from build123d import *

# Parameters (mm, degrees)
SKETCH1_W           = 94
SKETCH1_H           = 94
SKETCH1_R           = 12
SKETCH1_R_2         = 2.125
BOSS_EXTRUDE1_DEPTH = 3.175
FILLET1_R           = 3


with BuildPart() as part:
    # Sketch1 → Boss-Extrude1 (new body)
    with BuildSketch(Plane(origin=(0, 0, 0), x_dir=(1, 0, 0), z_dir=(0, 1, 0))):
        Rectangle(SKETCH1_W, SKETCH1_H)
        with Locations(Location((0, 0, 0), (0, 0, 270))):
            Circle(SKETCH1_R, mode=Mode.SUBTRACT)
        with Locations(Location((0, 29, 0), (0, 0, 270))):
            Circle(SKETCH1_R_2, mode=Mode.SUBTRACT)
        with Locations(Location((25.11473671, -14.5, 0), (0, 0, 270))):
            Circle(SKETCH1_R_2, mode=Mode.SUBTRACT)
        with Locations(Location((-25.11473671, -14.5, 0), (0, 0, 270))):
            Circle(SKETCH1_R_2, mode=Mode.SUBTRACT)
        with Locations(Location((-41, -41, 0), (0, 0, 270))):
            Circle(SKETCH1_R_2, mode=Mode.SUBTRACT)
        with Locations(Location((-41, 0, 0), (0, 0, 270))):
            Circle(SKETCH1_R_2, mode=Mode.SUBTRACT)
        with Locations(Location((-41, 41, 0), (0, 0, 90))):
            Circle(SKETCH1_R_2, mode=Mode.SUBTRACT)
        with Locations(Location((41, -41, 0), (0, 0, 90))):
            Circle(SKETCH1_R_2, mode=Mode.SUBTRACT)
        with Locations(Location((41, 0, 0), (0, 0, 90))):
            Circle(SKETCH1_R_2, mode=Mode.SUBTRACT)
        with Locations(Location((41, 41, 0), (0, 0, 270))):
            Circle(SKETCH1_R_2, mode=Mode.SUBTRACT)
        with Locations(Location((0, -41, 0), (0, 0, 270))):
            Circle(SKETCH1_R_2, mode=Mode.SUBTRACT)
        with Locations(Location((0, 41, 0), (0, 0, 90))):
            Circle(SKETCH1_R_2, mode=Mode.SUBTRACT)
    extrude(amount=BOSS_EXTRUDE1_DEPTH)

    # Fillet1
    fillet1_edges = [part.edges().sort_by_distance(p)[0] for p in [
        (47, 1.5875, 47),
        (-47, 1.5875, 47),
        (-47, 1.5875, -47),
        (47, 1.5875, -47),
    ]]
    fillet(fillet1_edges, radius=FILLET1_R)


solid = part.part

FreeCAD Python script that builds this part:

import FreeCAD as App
import Part
import Sketcher

V = App.Vector
Q = App.Units.Quantity


def edges_at(feature, points):
    """Names of the edges that pass closest to the given points."""
    edges = feature.Shape.Edges
    near = lambda p: min(range(len(edges)), key=lambda i: edges[i].distToShape(Part.Vertex(*p))[0])
    return sorted({f"Edge{near(p) + 1}" for p in points})

doc = App.newDocument("Part")
body = doc.addObject("PartDesign::Body", "Body")

sketch1 = body.newObject("Sketcher::SketchObject", "Sketch")
sketch1.AttachmentSupport = (doc.getObject("XZ_Plane"), [""])
sketch1.MapMode = "FlatFace"
sketch1.addGeometry(Part.LineSegment(V(-47, -47, 0), V(-47, 47, 0)), False)
sketch1.addGeometry(Part.LineSegment(V(-47, 47, 0), V(47, 47, 0)), False)
sketch1.addGeometry(Part.LineSegment(V(47, 47, 0), V(47, -47, 0)), False)
sketch1.addGeometry(Part.LineSegment(V(47, -47, 0), V(-47, -47, 0)), False)
sketch1.addGeometry(Part.Circle(V(-41, 41, 0), V(0, 0, 1), 2.1), False)
sketch1.addGeometry(Part.Circle(V(-25.1, 14.5, 0), V(0, 0, 1), 2.1), False)
sketch1.addGeometry(Part.Circle(V(0, 41, 0), V(0, 0, 1), 2.1), False)
sketch1.addGeometry(Part.Circle(V(41, 41, 0), V(0, 0, 1), 2.1), False)
sketch1.addGeometry(Part.Circle(V(25.1, 14.5, 0), V(0, 0, 1), 2.1), False)
sketch1.addGeometry(Part.Circle(V(-41, 0, 0), V(0, 0, 1), 2.1), False)
sketch1.addGeometry(Part.Circle(V(-41, -41, 0), V(0, 0, 1), 2.1), False)
sketch1.addGeometry(Part.Circle(V(0, 0, 0), V(0, 0, 1), 12), False)
sketch1.addGeometry(Part.Circle(V(41, 0, 0), V(0, 0, 1), 2.1), False)
sketch1.addGeometry(Part.Circle(V(0, -29, 0), V(0, 0, 1), 2.1), False)
sketch1.addGeometry(Part.Circle(V(0, -41, 0), V(0, 0, 1), 2.1), False)
sketch1.addGeometry(Part.Circle(V(41, -41, 0), V(0, 0, 1), 2.1), False)
sketch1.addConstraint(Sketcher.Constraint("Coincident", 0, 2, 1, 1))
sketch1.addConstraint(Sketcher.Constraint("Coincident", 1, 2, 2, 1))
sketch1.addConstraint(Sketcher.Constraint("Coincident", 2, 2, 3, 1))
sketch1.addConstraint(Sketcher.Constraint("Coincident", 3, 2, 0, 1))
sketch1.addConstraint(Sketcher.Constraint("Vertical", 0))
sketch1.addConstraint(Sketcher.Constraint("Horizontal", 1))
sketch1.addConstraint(Sketcher.Constraint("Vertical", 2))
sketch1.addConstraint(Sketcher.Constraint("Horizontal", 3))
sketch1.addConstraint(Sketcher.Constraint("Coincident", 11, 3, -1, 1))
sketch1.addConstraint(Sketcher.Constraint("Equal", 4, 5))
sketch1.addConstraint(Sketcher.Constraint("Equal", 5, 6))
sketch1.addConstraint(Sketcher.Constraint("Equal", 6, 7))
sketch1.addConstraint(Sketcher.Constraint("Equal", 7, 8))
sketch1.addConstraint(Sketcher.Constraint("Equal", 8, 9))
sketch1.addConstraint(Sketcher.Constraint("Equal", 9, 10))
sketch1.addConstraint(Sketcher.Constraint("Equal", 10, 12))
sketch1.addConstraint(Sketcher.Constraint("Equal", 12, 13))
sketch1.addConstraint(Sketcher.Constraint("Equal", 13, 14))
sketch1.addConstraint(Sketcher.Constraint("Equal", 14, 15))
sketch1.addConstraint(Sketcher.Constraint("Symmetric", 7, 3, 10, 3, -1, 1))
sketch1.addConstraint(Sketcher.Constraint("Symmetric", 9, 3, 12, 3, -1, 1))
sketch1.addConstraint(Sketcher.Constraint("Symmetric", 6, 3, 14, 3, -1, 1))
sketch1.addConstraint(Sketcher.Constraint("Symmetric", 4, 3, 15, 3, -1, 1))
sketch1.addConstraint(Sketcher.Constraint("Symmetric", 0, 2, 2, 2, -1, 1))
sketch1.addConstraint(Sketcher.Constraint("Symmetric", 4, 3, 7, 3, -2))
sketch1.addConstraint(Sketcher.Constraint("Symmetric", 5, 3, 8, 3, -2))
sketch1.addConstraint(Sketcher.Constraint("PointOnObject", 6, 3, -2))
sketch1.addConstraint(Sketcher.Constraint("PointOnObject", 9, 3, -1))
sketch1.addConstraint(Sketcher.Constraint("PointOnObject", 13, 3, -2))
sketch1.addConstraint(Sketcher.Constraint("Horizontal", 4, 3, 6, 3))
sketch1.addConstraint(Sketcher.Constraint("Vertical", 4, 3, 9, 3))
sketch1.addConstraint(Sketcher.Constraint("Equal", 3, 0))
sketch1.addConstraint(Sketcher.Constraint("Diameter", 11, Q("24 mm")))
sketch1.addConstraint(Sketcher.Constraint("Diameter", 4, Q("4.25 mm")))
sketch1.addConstraint(Sketcher.Constraint("DistanceX", 1, 1, 1, 2, Q("94 mm")))
sketch1.addConstraint(Sketcher.Constraint("DistanceX", 4, 3, -1, 1, Q("41 mm")))
sketch1.addConstraint(Sketcher.Constraint("DistanceY", -1, 1, 4, 3, Q("41 mm")))
sketch1.addConstraint(Sketcher.Constraint("DistanceY", 13, 3, -1, 1, Q("29 mm")))
sketch1.addConstraint(Sketcher.Constraint("DistanceY", -1, 1, 5, 3, Q("14.5 mm")))
sketch1.addConstraint(Sketcher.Constraint("DistanceX", 5, 3, -1, 1, Q("25.114737 mm")))
pad1 = body.newObject("PartDesign::Pad", "Pad")
pad1.Profile = sketch1
pad1.Length = 3.175
pad1.Reversed = True
doc.recompute()

fillet = body.newObject("PartDesign::Fillet", "Fillet")
fillet.Base = (pad1, edges_at(pad1, [
    (47, 1.587, 47),
    (-47, 1.587, 47),
    (-47, 1.587, -47),
    (47, 1.587, -47),
]))
fillet.Radius = 3

doc.recompute()
